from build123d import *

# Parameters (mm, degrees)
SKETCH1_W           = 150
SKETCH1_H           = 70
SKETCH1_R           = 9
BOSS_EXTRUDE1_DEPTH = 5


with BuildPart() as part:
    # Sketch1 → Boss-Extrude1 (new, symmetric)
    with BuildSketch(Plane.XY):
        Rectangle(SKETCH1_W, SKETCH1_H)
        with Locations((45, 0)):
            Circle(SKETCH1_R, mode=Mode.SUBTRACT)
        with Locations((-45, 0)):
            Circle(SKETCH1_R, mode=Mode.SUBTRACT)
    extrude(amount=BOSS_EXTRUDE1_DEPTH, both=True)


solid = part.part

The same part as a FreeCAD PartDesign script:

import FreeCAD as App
import Part
import Sketcher
from FreeCAD import Vector


def add_polygon(sketch, points):
    """Adds a closed chain of lines whose ends are joined by coincident constraints."""
    first, n = sketch.GeometryCount, len(points)
    for a, b in zip(points, points[1:] + points[:1]):
        sketch.addGeometry(Part.LineSegment(App.Vector(*a, 0), App.Vector(*b, 0)), False)
    for i in range(n):
        sketch.addConstraint(Sketcher.Constraint("Coincident", first + i, 2, first + (i + 1) % n, 1))

doc = App.newDocument("Part")
params = doc.addObject("Spreadsheet::Sheet", "Params")
for row, (alias, value) in enumerate([
    ("sketch1_diameter", "18 mm"),
    ("sketch1_width", "150 mm"),
    ("sketch1_height", "70 mm"),
    ("pad1_length", "10 mm"),
], start=1):
    params.set(f"A{row}", alias)
    params.set(f"B{row}", "=" + value)
    params.setAlias(f"B{row}", alias)

body = doc.addObject("PartDesign::Body", "Body")

sketch1 = doc.addObject("Sketcher::SketchObject", "Sketch")
body.addObject(sketch1)
sketch1.AttachmentSupport = (doc.XY_Plane, [""])
sketch1.MapMode = "FlatFace"
add_polygon(sketch1, [(-75, 35), (-75, -35), (75, -35), (75, 35)])
sketch1.addGeometry(Part.Circle(Vector(-45, 0, 0), Vector(0, 0, 1), 9), False)
sketch1.addGeometry(Part.Circle(Vector(45, 0, 0), Vector(0, 0, 1), 9), False)
sketch1.addConstraint([
    Sketcher.Constraint("Vertical", 0),
    Sketcher.Constraint("Horizontal", 1),
    Sketcher.Constraint("Vertical", 2),
    Sketcher.Constraint("Horizontal", 3),
    Sketcher.Constraint("Equal", 4, 5),
    Sketcher.Constraint("Symmetric", 4, 3, 5, 3, -1, 1),
    Sketcher.Constraint("Symmetric", 0, 2, 2, 2, -1, 1),
    Sketcher.Constraint("PointOnObject", 4, 3, -1),
    Sketcher.Constraint("Diameter", 4, 18.0),
    Sketcher.Constraint("DistanceX", 1, 1, 1, 2, 150.0),
    Sketcher.Constraint("DistanceY", 0, 2, 0, 1, 70.0),
    Sketcher.Constraint("DistanceX", 4, 3, -1, 1, 45.0),
])
sketch1.setExpression("Constraints[12]", "Params.sketch1_diameter")
sketch1.setExpression("Constraints[13]", "Params.sketch1_width")
sketch1.setExpression("Constraints[14]", "Params.sketch1_height")
pad1 = doc.addObject("PartDesign::Pad", "Pad")
body.addObject(pad1)
pad1.Profile = sketch1
pad1.setExpression("Length", "Params.pad1_length")
pad1.Midplane = True

doc.recompute()
